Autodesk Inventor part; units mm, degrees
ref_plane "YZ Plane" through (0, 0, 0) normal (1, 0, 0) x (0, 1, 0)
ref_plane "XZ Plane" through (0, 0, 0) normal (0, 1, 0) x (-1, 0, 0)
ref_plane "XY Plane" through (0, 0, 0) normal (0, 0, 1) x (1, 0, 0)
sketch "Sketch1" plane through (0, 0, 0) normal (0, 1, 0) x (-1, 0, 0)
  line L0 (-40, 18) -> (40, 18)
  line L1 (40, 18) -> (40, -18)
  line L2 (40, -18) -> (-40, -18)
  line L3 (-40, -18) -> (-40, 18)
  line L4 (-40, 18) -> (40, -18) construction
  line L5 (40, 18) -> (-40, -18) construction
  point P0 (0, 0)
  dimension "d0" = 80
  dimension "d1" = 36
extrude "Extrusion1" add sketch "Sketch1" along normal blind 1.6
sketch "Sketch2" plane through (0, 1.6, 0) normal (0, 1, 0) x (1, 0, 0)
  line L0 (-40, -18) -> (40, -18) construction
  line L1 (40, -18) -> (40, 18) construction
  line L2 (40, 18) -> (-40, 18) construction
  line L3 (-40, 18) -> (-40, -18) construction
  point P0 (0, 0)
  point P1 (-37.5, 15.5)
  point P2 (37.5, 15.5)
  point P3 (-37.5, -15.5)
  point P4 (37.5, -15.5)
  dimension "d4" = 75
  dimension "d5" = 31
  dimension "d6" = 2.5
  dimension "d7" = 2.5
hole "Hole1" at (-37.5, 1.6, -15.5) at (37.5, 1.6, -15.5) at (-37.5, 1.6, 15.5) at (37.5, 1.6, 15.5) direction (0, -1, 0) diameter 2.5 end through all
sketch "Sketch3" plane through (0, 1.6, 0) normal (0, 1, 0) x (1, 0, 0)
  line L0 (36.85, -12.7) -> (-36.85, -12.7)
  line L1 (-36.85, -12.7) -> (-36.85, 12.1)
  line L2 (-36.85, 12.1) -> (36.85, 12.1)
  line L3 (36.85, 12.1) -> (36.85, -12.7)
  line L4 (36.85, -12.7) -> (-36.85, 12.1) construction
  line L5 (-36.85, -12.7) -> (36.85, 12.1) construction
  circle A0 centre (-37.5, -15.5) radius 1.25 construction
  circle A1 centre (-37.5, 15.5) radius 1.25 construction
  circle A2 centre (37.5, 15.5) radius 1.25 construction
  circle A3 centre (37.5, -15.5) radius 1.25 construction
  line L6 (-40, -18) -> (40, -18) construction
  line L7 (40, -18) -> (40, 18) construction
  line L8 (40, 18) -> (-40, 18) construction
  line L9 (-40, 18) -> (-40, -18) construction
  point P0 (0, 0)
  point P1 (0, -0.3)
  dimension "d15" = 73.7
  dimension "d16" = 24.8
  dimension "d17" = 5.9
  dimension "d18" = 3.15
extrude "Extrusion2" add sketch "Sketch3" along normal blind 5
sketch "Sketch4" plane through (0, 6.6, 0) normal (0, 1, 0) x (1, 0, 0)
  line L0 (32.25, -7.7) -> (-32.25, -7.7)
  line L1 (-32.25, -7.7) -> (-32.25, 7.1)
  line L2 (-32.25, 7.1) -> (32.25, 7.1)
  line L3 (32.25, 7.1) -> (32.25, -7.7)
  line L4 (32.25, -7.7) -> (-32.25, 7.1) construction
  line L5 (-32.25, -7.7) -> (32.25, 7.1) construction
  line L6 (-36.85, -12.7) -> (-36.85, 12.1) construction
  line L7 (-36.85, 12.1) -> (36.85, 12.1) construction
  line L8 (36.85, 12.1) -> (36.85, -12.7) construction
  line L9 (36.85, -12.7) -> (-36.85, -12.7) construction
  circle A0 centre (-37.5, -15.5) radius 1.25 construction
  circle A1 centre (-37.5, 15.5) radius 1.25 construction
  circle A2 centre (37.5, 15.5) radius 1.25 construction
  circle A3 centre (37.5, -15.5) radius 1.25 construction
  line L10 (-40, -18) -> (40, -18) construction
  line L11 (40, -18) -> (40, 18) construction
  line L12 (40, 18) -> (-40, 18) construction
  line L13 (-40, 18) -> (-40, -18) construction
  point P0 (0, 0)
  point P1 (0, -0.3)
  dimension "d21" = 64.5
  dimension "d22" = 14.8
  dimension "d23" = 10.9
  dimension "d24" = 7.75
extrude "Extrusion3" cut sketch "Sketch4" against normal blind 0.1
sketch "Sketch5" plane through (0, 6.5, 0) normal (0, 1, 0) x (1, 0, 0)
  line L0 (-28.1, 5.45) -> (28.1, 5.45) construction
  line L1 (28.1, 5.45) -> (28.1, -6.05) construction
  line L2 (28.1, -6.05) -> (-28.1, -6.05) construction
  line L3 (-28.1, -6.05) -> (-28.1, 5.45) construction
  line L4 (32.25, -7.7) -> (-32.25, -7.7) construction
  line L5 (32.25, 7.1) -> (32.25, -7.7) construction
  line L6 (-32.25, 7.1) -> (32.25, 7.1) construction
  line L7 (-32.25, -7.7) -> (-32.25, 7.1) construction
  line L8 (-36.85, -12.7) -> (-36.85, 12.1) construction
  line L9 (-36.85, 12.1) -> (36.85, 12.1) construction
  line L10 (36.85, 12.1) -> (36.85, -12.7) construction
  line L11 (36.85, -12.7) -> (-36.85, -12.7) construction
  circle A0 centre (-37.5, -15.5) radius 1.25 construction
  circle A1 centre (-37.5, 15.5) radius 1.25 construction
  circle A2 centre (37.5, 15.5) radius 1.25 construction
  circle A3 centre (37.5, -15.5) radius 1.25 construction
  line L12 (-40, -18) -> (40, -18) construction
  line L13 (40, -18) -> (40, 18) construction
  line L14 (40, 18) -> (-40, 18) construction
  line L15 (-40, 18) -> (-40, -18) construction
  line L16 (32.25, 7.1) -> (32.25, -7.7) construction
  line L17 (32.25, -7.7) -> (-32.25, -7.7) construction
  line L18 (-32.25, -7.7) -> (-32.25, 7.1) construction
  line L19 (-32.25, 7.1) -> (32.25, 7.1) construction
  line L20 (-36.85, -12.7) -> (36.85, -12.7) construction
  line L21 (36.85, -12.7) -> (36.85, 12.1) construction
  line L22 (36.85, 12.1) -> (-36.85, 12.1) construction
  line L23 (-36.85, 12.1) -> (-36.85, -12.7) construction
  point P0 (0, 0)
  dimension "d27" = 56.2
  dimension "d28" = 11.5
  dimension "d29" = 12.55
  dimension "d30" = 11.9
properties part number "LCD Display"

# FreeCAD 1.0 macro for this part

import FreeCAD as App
import Part
import Sketcher

V = App.Vector
Q = App.Units.Quantity

doc = App.newDocument("Part")
params = doc.addObject("Spreadsheet::Sheet", "Params")
for row, (alias, value) in enumerate([
    ("sketch1_width", "80 mm"),
    ("sketch1_height", "36 mm"),
    ("pad1_length", "1.6 mm"),
    ("sketch2_diameter", "2.5 mm"),
    ("hole_diameter", "2.5 mm"),
    ("sketch3_width", "73.7 mm"),
    ("sketch3_height", "24.8 mm"),
    ("pad2_length", "5 mm"),
    ("sketch4_width", "64.5 mm"),
    ("sketch4_height", "14.8 mm"),
    ("pocket1_length", "0.1 mm"),
], start=1):
    params.set(f"A{row}", alias)
    params.set(f"B{row}", "=" + value)
    params.setAlias(f"B{row}", alias)

body = doc.addObject("PartDesign::Body", "Body")

# Sketch on XZ plane
sketch1 = body.newObject("Sketcher::SketchObject", "Sketch")
sketch1.AttachmentSupport = (doc.getObject("XZ_Plane"), [""])
sketch1.MapMode = "FlatFace"
sketch1.addGeometry([
    Part.LineSegment(V(-40, 18, 0), V(40, 18, 0)),
    Part.LineSegment(V(40, 18, 0), V(40, -18, 0)),
    Part.LineSegment(V(40, -18, 0), V(-40, -18, 0)),
    Part.LineSegment(V(-40, -18, 0), V(-40, 18, 0)),
], False)
sketch1.addConstraint([
    Sketcher.Constraint("Coincident", 0, 2, 1, 1),
    Sketcher.Constraint("Coincident", 1, 2, 2, 1),
    Sketcher.Constraint("Coincident", 2, 2, 3, 1),
    Sketcher.Constraint("Coincident", 3, 2, 0, 1),
    Sketcher.Constraint("Horizontal", 0),
    Sketcher.Constraint("Vertical", 1),
    Sketcher.Constraint("Horizontal", 2),
    Sketcher.Constraint("Vertical", 3),
    Sketcher.Constraint("Symmetric", 0, 2, 2, 2, -1, 1),
    Sketcher.Constraint("DistanceX", 0, 1, 0, 2, Q("80 mm")),
    Sketcher.Constraint("DistanceY", 1, 2, 1, 1, Q("36 mm")),
])
sketch1.setExpression("Constraints[9]", "Params.sketch1_width")
sketch1.setExpression("Constraints[10]", "Params.sketch1_height")
pad1 = body.newObject("PartDesign::Pad", "Pad")
pad1.Profile = sketch1
pad1.setExpression("Length", "Params.pad1_length")
pad1.Reversed = True

# Sketch on XZ plane
sketch2 = body.newObject("Sketcher::SketchObject", "Sketch001")
sketch2.AttachmentSupport = (doc.getObject("XZ_Plane"), [""])
sketch2.MapMode = "FlatFace"
sketch2.AttachmentOffset = App.Placement(V(0, 0, -1.6), App.Rotation())
sketch2.addGeometry([
    Part.Circle(V(-37.5, -15.5, 0), V(0, 0, 1), 1.2),
    Part.Circle(V(37.5, -15.5, 0), V(0, 0, 1), 1.2),
    Part.Circle(V(-37.5, 15.5, 0), V(0, 0, 1), 1.2),
    Part.Circle(V(37.5, 15.5, 0), V(0, 0, 1), 1.2),
], False)
sketch2.addConstraint([
    Sketcher.Constraint("Equal", 0, 1),
    Sketcher.Constraint("Equal", 1, 2),
    Sketcher.Constraint("Equal", 2, 3),
    Sketcher.Constraint("Symmetric", 1, 3, 2, 3, -1, 1),
    Sketcher.Constraint("Symmetric", 0, 3, 3, 3, -1, 1),
    Sketcher.Constraint("Symmetric", 0, 3, 1, 3, -2),
    Sketcher.Constraint("Diameter", 0, Q("2.5 mm")),
    Sketcher.Constraint("DistanceX", 0, 3, 1, 3, Q("75 mm")),
    Sketcher.Constraint("DistanceY", 0, 3, 2, 3, Q("31 mm")),
])
sketch2.setExpression("Constraints[6]", "Params.sketch2_diameter")
doc.recompute()
hole = body.newObject("PartDesign::Hole", "Hole")
hole.Profile = sketch2
hole.ThreadType = "None"
hole.setExpression("Diameter", "Params.hole_diameter")
hole.DepthType = "ThroughAll"
hole.Reversed = True

# Sketch on XZ plane
sketch3 = body.newObject("Sketcher::SketchObject", "Sketch002")
sketch3.AttachmentSupport = (doc.getObject("XZ_Plane"), [""])
sketch3.MapMode = "FlatFace"
sketch3.AttachmentOffset = App.Placement(V(0, 0, -1.6), App.Rotation())
sketch3.addGeometry([
    Part.LineSegment(V(-37, 13, 0), V(37, 13, 0)),
    Part.LineSegment(V(37, 13, 0), V(37, -12, 0)),
    Part.LineSegment(V(37, -12, 0), V(-37, -12, 0)),
    Part.LineSegment(V(-37, -12, 0), V(-37, 13, 0)),
], False)
sketch3.addConstraint([
    Sketcher.Constraint("Coincident", 0, 2, 1, 1),
    Sketcher.Constraint("Coincident", 1, 2, 2, 1),
    Sketcher.Constraint("Coincident", 2, 2, 3, 1),
    Sketcher.Constraint("Coincident", 3, 2, 0, 1),
    Sketcher.Constraint("Horizontal", 0),
    Sketcher.Constraint("Vertical", 1),
    Sketcher.Constraint("Horizontal", 2),
    Sketcher.Constraint("Vertical", 3),
    Sketcher.Constraint("DistanceX", 0, 1, 0, 2, Q("73.7 mm")),
    Sketcher.Constraint("DistanceY", 1, 2, 1, 1, Q("24.8 mm")),
    Sketcher.Constraint("DistanceY", -1, 1, 0, 2, Q("12.7 mm")),
    Sketcher.Constraint("DistanceX", -1, 1, 0, 2, Q("36.85 mm")),
])
sketch3.setExpression("Constraints[8]", "Params.sketch3_width")
sketch3.setExpression("Constraints[9]", "Params.sketch3_height")
pad2 = body.newObject("PartDesign::Pad", "Pad001")
pad2.Profile = sketch3
pad2.setExpression("Length", "Params.pad2_length")
pad2.Reversed = True

# Sketch on XZ plane
sketch4 = body.newObject("Sketcher::SketchObject", "Sketch003")
sketch4.AttachmentSupport = (doc.getObject("XZ_Plane"), [""])
sketch4.MapMode = "FlatFace"
sketch4.AttachmentOffset = App.Placement(V(0, 0, -6.6), App.Rotation())
sketch4.addGeometry([
    Part.LineSegment(V(-32, 8, 0), V(32, 8, 0)),
    Part.LineSegment(V(32, 8, 0), V(32, -7, 0)),
    Part.LineSegment(V(32, -7, 0), V(-32, -7, 0)),
    Part.LineSegment(V(-32, -7, 0), V(-32, 8, 0)),
], False)
sketch4.addConstraint([
    Sketcher.Constraint("Coincident", 0, 2, 1, 1),
    Sketcher.Constraint("Coincident", 1, 2, 2, 1),
    Sketcher.Constraint("Coincident", 2, 2, 3, 1),
    Sketcher.Constraint("Coincident", 3, 2, 0, 1),
    Sketcher.Constraint("Horizontal", 0),
    Sketcher.Constraint("Vertical", 1),
    Sketcher.Constraint("Horizontal", 2),
    Sketcher.Constraint("Vertical", 3),
    Sketcher.Constraint("DistanceX", 0, 1, 0, 2, Q("64.5 mm")),
    Sketcher.Constraint("DistanceY", 1, 2, 1, 1, Q("14.8 mm")),
    Sketcher.Constraint("DistanceY", -1, 1, 0, 2, Q("7.7 mm")),
    Sketcher.Constraint("DistanceX", -1, 1, 0, 2, Q("32.25 mm")),
])
sketch4.setExpression("Constraints[8]", "Params.sketch4_width")
sketch4.setExpression("Constraints[9]", "Params.sketch4_height")
pocket1 = body.newObject("PartDesign::Pocket", "Pocket")
pocket1.Profile = sketch4
pocket1.setExpression("Length", "Params.pocket1_length")
pocket1.Reversed = True

doc.recompute()
